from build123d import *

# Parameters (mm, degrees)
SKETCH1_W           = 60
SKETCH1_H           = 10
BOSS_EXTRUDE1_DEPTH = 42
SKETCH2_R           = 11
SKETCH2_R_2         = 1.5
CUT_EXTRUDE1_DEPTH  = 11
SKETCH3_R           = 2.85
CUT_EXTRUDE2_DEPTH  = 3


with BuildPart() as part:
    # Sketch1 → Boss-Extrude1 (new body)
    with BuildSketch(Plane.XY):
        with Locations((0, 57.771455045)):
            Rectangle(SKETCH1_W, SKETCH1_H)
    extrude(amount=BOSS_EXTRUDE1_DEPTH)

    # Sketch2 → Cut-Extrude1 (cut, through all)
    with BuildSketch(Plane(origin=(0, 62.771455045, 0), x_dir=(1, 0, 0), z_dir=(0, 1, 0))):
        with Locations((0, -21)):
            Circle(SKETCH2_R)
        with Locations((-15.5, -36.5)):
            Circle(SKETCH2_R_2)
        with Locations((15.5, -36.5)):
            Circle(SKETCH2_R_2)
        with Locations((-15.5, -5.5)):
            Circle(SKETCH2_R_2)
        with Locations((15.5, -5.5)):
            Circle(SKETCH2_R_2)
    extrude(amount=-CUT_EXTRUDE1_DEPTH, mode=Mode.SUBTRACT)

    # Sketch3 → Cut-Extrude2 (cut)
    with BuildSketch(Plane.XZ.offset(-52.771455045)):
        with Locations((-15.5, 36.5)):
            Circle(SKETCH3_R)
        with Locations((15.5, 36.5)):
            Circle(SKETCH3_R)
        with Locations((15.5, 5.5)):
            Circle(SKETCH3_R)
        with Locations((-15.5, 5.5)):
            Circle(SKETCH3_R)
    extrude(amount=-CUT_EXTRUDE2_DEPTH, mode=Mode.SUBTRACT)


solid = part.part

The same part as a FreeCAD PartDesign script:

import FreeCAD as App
import Part
import Sketcher
from FreeCAD import Vector
Q = App.Units.Quantity

doc = App.newDocument("Part")
body = doc.addObject("PartDesign::Body", "Body")

sketch1 = body.newObject("Sketcher::SketchObject", "Sketch")
sketch1.AttachmentSupport = (doc.getObject("XY_Plane"), [""])
sketch1.MapMode = "FlatFace"
sketch1.addGeometry([
    Part.LineSegment(Vector(-30, 62.771455, 0), Vector(-30, 52.771455, 0)),
    Part.LineSegment(Vector(-30, 52.771455, 0), Vector(30, 52.771455, 0)),
    Part.LineSegment(Vector(30, 52.771455, 0), Vector(30, 62.771455, 0)),
    Part.LineSegment(Vector(30, 62.771455, 0), Vector(-30, 62.771455, 0)),
], False)
sketch1.addConstraint([
    Sketcher.Constraint("Coincident", 0, 2, 1, 1),
    Sketcher.Constraint("Coincident", 1, 2, 2, 1),
    Sketcher.Constraint("Coincident", 2, 2, 3, 1),
    Sketcher.Constraint("Coincident", 3, 2, 0, 1),
    Sketcher.Constraint("Vertical", 0),
    Sketcher.Constraint("Horizontal", 1),
    Sketcher.Constraint("Vertical", 2),
    Sketcher.Constraint("Horizontal", 3),
    Sketcher.Constraint("DistanceX", 1, 1, 1, 2, Q("60 mm")),
    Sketcher.Constraint("DistanceY", 0, 2, 0, 1, Q("10 mm")),
    Sketcher.Constraint("DistanceX", 0, 2, -1, 1, Q("30 mm")),
    Sketcher.Constraint("DistanceY", -1, 1, 0, 2, Q("52.771455 mm")),
])
pad1 = body.newObject("PartDesign::Pad", "Pad")
pad1.Profile = sketch1
pad1.Length = 42

sketch2 = body.newObject("Sketcher::SketchObject", "Sketch001")
sketch2.AttachmentSupport = (doc.getObject("XZ_Plane"), [""])
sketch2.MapMode = "FlatFace"
sketch2.AttachmentOffset = App.Placement(Vector(0, 0, -62.771455), App.Rotation())
sketch2.addGeometry([
    Part.Circle(Vector(0, 21, 0), Vector(0, 0, 1), 11),
    Part.Circle(Vector(-15.5, 36.5, 0), Vector(0, 0, 1), 1.5),
    Part.Circle(Vector(15.5, 36.5, 0), Vector(0, 0, 1), 1.5),
    Part.Circle(Vector(-15.5, 5.5, 0), Vector(0, 0, 1), 1.5),
    Part.Circle(Vector(15.5, 5.5, 0), Vector(0, 0, 1), 1.5),
], False)
sketch2.addConstraint([
    Sketcher.Constraint("Equal", 1, 2),
    Sketcher.Constraint("Equal", 2, 3),
    Sketcher.Constraint("Equal", 3, 4),
    Sketcher.Constraint("Symmetric", 1, 3, 2, 3, -2),
    Sketcher.Constraint("Symmetric", 3, 3, 4, 3, -2),
    Sketcher.Constraint("PointOnObject", 0, 3, -2),
    Sketcher.Constraint("Vertical", 1, 3, 3, 3),
    Sketcher.Constraint("Diameter", 0, Q("22 mm")),
    Sketcher.Constraint("Diameter", 1, Q("3 mm")),
    Sketcher.Constraint("DistanceY", -1, 1, 0, 3, Q("21 mm")),
    Sketcher.Constraint("DistanceX", 1, 3, 2, 3, Q("31 mm")),
    Sketcher.Constraint("DistanceY", 3, 3, 1, 3, Q("31 mm")),
    Sketcher.Constraint("DistanceY", -1, 1, 1, 3, Q("36.5 mm")),
])
pocket1 = body.newObject("PartDesign::Pocket", "Pocket")
pocket1.Profile = sketch2
pocket1.Type = "ThroughAll"
pocket1.Reversed = True

sketch3 = body.newObject("Sketcher::SketchObject", "Sketch002")
sketch3.AttachmentSupport = (doc.getObject("XZ_Plane"), [""])
sketch3.MapMode = "FlatFace"
sketch3.AttachmentOffset = App.Placement(Vector(0, 0, -52.771455), App.Rotation())
sketch3.addGeometry([
    Part.Circle(Vector(-15.5, 36.5, 0), Vector(0, 0, 1), 2.85),
    Part.Circle(Vector(15.5, 36.5, 0), Vector(0, 0, 1), 2.85),
    Part.Circle(Vector(15.5, 5.5, 0), Vector(0, 0, 1), 2.85),
    Part.Circle(Vector(-15.5, 5.5, 0), Vector(0, 0, 1), 2.85),
], False)
sketch3.addConstraint([
    Sketcher.Constraint("Equal", 0, 1),
    Sketcher.Constraint("Equal", 1, 2),
    Sketcher.Constraint("Equal", 2, 3),
    Sketcher.Constraint("Symmetric", 0, 3, 1, 3, -2),
    Sketcher.Constraint("Symmetric", 2, 3, 3, 3, -2),
    Sketcher.Constraint("Vertical", 1, 3, 2, 3),
    Sketcher.Constraint("Diameter", 0, Q("5.7 mm")),
    Sketcher.Constraint("DistanceX", 0, 3, 1, 3, Q("31 mm")),
    Sketcher.Constraint("DistanceY", 2, 3, 1, 3, Q("31 mm")),
    Sketcher.Constraint("DistanceY", -1, 1, 0, 3, Q("36.5 mm")),
])
pocket2 = body.newObject("PartDesign::Pocket", "Pocket001")
pocket2.Profile = sketch3
pocket2.Length = 3

doc.recompute()
